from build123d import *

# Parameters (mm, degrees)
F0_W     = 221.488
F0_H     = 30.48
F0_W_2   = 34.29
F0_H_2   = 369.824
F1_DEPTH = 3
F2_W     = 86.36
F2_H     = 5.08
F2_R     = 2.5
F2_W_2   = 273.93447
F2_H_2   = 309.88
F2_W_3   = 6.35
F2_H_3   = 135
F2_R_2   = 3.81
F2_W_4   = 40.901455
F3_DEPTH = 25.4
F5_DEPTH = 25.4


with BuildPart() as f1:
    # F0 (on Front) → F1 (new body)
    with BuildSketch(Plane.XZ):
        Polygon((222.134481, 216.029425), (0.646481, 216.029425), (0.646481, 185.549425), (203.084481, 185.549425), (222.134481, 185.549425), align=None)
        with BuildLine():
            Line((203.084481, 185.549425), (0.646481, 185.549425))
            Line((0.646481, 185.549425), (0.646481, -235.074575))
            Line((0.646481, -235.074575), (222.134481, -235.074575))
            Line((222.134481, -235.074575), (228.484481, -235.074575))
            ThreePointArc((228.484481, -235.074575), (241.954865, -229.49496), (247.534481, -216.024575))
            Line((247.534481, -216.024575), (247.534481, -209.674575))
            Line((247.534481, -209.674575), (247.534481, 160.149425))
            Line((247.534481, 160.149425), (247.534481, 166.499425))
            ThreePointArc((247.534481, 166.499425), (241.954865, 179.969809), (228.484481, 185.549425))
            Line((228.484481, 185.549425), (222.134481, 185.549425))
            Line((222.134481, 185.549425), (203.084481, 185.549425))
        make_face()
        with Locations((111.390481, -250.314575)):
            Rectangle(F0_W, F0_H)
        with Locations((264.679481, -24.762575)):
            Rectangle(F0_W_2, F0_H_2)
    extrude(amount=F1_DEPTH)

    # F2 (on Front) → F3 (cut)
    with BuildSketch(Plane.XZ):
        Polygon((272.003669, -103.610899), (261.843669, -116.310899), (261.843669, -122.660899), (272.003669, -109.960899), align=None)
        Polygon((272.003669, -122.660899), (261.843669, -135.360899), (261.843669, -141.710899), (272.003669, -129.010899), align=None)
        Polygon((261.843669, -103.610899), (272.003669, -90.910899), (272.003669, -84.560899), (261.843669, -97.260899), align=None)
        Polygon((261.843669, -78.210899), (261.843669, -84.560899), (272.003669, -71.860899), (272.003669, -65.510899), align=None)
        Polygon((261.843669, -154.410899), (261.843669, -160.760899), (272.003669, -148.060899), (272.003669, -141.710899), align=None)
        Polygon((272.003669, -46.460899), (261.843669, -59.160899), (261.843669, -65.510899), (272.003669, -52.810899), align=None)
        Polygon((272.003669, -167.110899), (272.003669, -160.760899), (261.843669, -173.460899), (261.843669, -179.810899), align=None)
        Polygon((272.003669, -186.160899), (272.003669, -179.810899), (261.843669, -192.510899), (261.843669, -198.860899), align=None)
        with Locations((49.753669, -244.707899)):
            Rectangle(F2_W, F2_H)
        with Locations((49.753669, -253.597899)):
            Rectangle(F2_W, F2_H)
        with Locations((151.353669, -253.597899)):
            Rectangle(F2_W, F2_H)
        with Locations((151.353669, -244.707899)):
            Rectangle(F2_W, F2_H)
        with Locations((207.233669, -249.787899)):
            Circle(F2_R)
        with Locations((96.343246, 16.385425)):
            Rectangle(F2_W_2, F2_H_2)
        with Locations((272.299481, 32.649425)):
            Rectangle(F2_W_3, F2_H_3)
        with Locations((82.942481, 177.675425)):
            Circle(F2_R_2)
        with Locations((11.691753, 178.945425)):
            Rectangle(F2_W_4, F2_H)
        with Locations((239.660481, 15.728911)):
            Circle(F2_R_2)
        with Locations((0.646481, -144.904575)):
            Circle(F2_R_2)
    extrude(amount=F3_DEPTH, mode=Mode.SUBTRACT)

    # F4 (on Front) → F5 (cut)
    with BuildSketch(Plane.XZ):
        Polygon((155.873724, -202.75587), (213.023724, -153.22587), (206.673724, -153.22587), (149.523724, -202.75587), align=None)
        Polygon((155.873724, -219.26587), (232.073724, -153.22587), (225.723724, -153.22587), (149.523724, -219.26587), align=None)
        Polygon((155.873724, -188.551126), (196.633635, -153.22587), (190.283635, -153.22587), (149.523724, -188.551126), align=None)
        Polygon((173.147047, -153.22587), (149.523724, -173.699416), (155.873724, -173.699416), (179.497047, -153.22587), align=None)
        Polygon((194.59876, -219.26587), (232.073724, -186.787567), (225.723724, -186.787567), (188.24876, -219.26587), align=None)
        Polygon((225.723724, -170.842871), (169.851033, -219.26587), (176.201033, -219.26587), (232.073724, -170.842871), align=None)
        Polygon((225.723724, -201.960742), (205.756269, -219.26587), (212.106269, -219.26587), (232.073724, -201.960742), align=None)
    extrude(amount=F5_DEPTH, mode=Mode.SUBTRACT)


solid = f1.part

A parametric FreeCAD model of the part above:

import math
import FreeCAD as App
import Part
import Sketcher
Q = App.Units.Quantity

doc = App.newDocument("Part")
body = doc.addObject("PartDesign::Body", "Body")

sketch1 = body.newObject("Sketcher::SketchObject", "Sketch")
sketch1.AttachmentSupport = (doc.getObject("XZ_Plane"), [""])
sketch1.MapMode = "FlatFace"
sketch1.addGeometry([
    Part.LineSegment(App.Vector(222, 216, 0), App.Vector(1, 216, 0)),
    Part.LineSegment(App.Vector(1, 216, 0), App.Vector(1, -266, 0)),
    Part.LineSegment(App.Vector(1, -266, 0), App.Vector(222, -266, 0)),
    Part.LineSegment(App.Vector(222, -266, 0), App.Vector(222, -235, 0)),
    Part.LineSegment(App.Vector(222, -235, 0), App.Vector(228, -235, 0)),
    Part.ArcOfCircle(Part.Circle(App.Vector(228, -216, 0), App.Vector(0, 0, 1), 19), math.radians(-90), math.radians(0)),
    Part.LineSegment(App.Vector(248, -216, 0), App.Vector(248, -210, 0)),
    Part.LineSegment(App.Vector(248, -210, 0), App.Vector(282, -210, 0)),
    Part.LineSegment(App.Vector(282, -210, 0), App.Vector(282, 160, 0)),
    Part.LineSegment(App.Vector(282, 160, 0), App.Vector(248, 160, 0)),
    Part.LineSegment(App.Vector(248, 160, 0), App.Vector(248, 166, 0)),
    Part.ArcOfCircle(Part.Circle(App.Vector(228, 166, 0), App.Vector(0, 0, 1), 19), math.radians(0), math.radians(90)),
    Part.LineSegment(App.Vector(228, 186, 0), App.Vector(222, 186, 0)),
    Part.LineSegment(App.Vector(222, 186, 0), App.Vector(222, 216, 0)),
], False)
sketch1.addConstraint([
    Sketcher.Constraint("Coincident", 0, 2, 1, 1),
    Sketcher.Constraint("Coincident", 1, 2, 2, 1),
    Sketcher.Constraint("Coincident", 2, 2, 3, 1),
    Sketcher.Constraint("Coincident", 3, 2, 4, 1),
    Sketcher.Constraint("Tangent", 4, 2, 5, 1),
    Sketcher.Constraint("Tangent", 5, 2, 6, 1),
    Sketcher.Constraint("Coincident", 6, 2, 7, 1),
    Sketcher.Constraint("Coincident", 7, 2, 8, 1),
    Sketcher.Constraint("Coincident", 8, 2, 9, 1),
    Sketcher.Constraint("Coincident", 9, 2, 10, 1),
    Sketcher.Constraint("Tangent", 10, 2, 11, 1),
    Sketcher.Constraint("Tangent", 11, 2, 12, 1),
    Sketcher.Constraint("Coincident", 12, 2, 13, 1),
    Sketcher.Constraint("Coincident", 13, 2, 0, 1),
    Sketcher.Constraint("Horizontal", 0),
    Sketcher.Constraint("Vertical", 1),
    Sketcher.Constraint("Horizontal", 2),
    Sketcher.Constraint("Vertical", 3),
    Sketcher.Constraint("Horizontal", 4),
    Sketcher.Constraint("Vertical", 6),
    Sketcher.Constraint("Horizontal", 7),
    Sketcher.Constraint("Vertical", 8),
    Sketcher.Constraint("Horizontal", 9),
    Sketcher.Constraint("Vertical", 10),
    Sketcher.Constraint("Horizontal", 12),
    Sketcher.Constraint("Vertical", 13),
    Sketcher.Constraint("Equal", 5, 11),
    Sketcher.Constraint("Vertical", 5, 3, 11, 3),
    Sketcher.Constraint("Vertical", 3, 2, 12, 2),
    Sketcher.Constraint("Equal", 12, 6),
    Sketcher.Constraint("Equal", 6, 10),
    Sketcher.Constraint("Equal", 3, 13),
    Sketcher.Constraint("Radius", 5, Q("0.75 in")),
    Sketcher.Constraint("DistanceY", 3, 1, 3, 2, Q("1.2 in")),
    Sketcher.Constraint("DistanceX", 3, 2, 5, 2, Q("1 in")),
    Sketcher.Constraint("DistanceX", 0, 2, 0, 1, Q("8.72 in")),
    Sketcher.Constraint("DistanceX", 7, 1, 7, 2, Q("1.35 in")),
    Sketcher.Constraint("DistanceY", 1, 2, 1, 1, Q("18.96 in")),
    Sketcher.Constraint("DistanceX", -1, 1, 11, 3, Q("228.48448 mm")),
    Sketcher.Constraint("DistanceY", 5, 3, -1, 1, Q("216.024576 mm")),
])
pad1 = body.newObject("PartDesign::Pad", "Pad")
pad1.Profile = sketch1
pad1.Length = 3

sketch2 = body.newObject("Sketcher::SketchObject", "Sketch001")
sketch2.AttachmentSupport = (doc.getObject("XZ_Plane"), [""])
sketch2.MapMode = "FlatFace"
sketch2.addGeometry([
    Part.LineSegment(App.Vector(272, -103.6, 0), App.Vector(261.8, -116.3, 0)),
    Part.LineSegment(App.Vector(261.8, -116.3, 0), App.Vector(261.8, -122.7, 0)),
    Part.LineSegment(App.Vector(261.8, -122.7, 0), App.Vector(272, -110, 0)),
    Part.LineSegment(App.Vector(272, -110, 0), App.Vector(272, -103.6, 0)),
    Part.LineSegment(App.Vector(272, -122.7, 0), App.Vector(261.8, -135.4, 0)),
    Part.LineSegment(App.Vector(261.8, -135.4, 0), App.Vector(261.8, -141.7, 0)),
    Part.LineSegment(App.Vector(261.8, -141.7, 0), App.Vector(272, -129, 0)),
    Part.LineSegment(App.Vector(272, -129, 0), App.Vector(272, -122.7, 0)),
    Part.LineSegment(App.Vector(261.8, -103.6, 0), App.Vector(272, -90.9, 0)),
    Part.LineSegment(App.Vector(272, -90.9, 0), App.Vector(272, -84.6, 0)),
    Part.LineSegment(App.Vector(272, -84.6, 0), App.Vector(261.8, -97.3, 0)),
    Part.LineSegment(App.Vector(261.8, -97.3, 0), App.Vector(261.8, -103.6, 0)),
    Part.LineSegment(App.Vector(261.8, -78.2, 0), App.Vector(261.8, -84.6, 0)),
    Part.LineSegment(App.Vector(261.8, -84.6, 0), App.Vector(272, -71.9, 0)),
    Part.LineSegment(App.Vector(272, -71.9, 0), App.Vector(272, -65.5, 0)),
    Part.LineSegment(App.Vector(272, -65.5, 0), App.Vector(261.8, -78.2, 0)),
    Part.LineSegment(App.Vector(261.8, -154.4, 0), App.Vector(261.8, -160.8, 0)),
    Part.LineSegment(App.Vector(261.8, -160.8, 0), App.Vector(272, -148.1, 0)),
    Part.LineSegment(App.Vector(272, -148.1, 0), App.Vector(272, -141.7, 0)),
    Part.LineSegment(App.Vector(272, -141.7, 0), App.Vector(261.8, -154.4, 0)),
    Part.LineSegment(App.Vector(272, -46.5, 0), App.Vector(261.8, -59.2, 0)),
    Part.LineSegment(App.Vector(261.8, -59.2, 0), App.Vector(261.8, -65.5, 0)),
    Part.LineSegment(App.Vector(261.8, -65.5, 0), App.Vector(272, -52.8, 0)),
    Part.LineSegment(App.Vector(272, -52.8, 0), App.Vector(272, -46.5, 0)),
    Part.LineSegment(App.Vector(272, -167.1, 0), App.Vector(272, -160.8, 0)),
    Part.LineSegment(App.Vector(272, -160.8, 0), App.Vector(261.8, -173.5, 0)),
    Part.LineSegment(App.Vector(261.8, -173.5, 0), App.Vector(261.8, -179.8, 0)),
    Part.LineSegment(App.Vector(261.8, -179.8, 0), App.Vector(272, -167.1, 0)),
    Part.LineSegment(App.Vector(272, -186.2, 0), App.Vector(272, -179.8, 0)),
    Part.LineSegment(App.Vector(272, -179.8, 0), App.Vector(261.8, -192.5, 0)),
    Part.LineSegment(App.Vector(261.8, -192.5, 0), App.Vector(261.8, -198.9, 0)),
    Part.LineSegment(App.Vector(261.8, -198.9, 0), App.Vector(272, -186.2, 0)),
    Part.LineSegment(App.Vector(6.6, -242.2, 0), App.Vector(6.6, -247.2, 0)),
    Part.LineSegment(App.Vector(6.6, -247.2, 0), App.Vector(92.9, -247.2, 0)),
    Part.LineSegment(App.Vector(92.9, -247.2, 0), App.Vector(92.9, -242.2, 0)),
    Part.LineSegment(App.Vector(92.9, -242.2, 0), App.Vector(6.6, -242.2, 0)),
    Part.LineSegment(App.Vector(6.6, -251.1, 0), App.Vector(6.6, -256.1, 0)),
    Part.LineSegment(App.Vector(6.6, -256.1, 0), App.Vector(92.9, -256.1, 0)),
    Part.LineSegment(App.Vector(92.9, -256.1, 0), App.Vector(92.9, -251.1, 0)),
    Part.LineSegment(App.Vector(92.9, -251.1, 0), App.Vector(6.6, -251.1, 0)),
    Part.LineSegment(App.Vector(108.2, -251.1, 0), App.Vector(108.2, -256.1, 0)),
    Part.LineSegment(App.Vector(108.2, -256.1, 0), App.Vector(194.5, -256.1, 0)),
    Part.LineSegment(App.Vector(194.5, -256.1, 0), App.Vector(194.5, -251.1, 0)),
    Part.LineSegment(App.Vector(194.5, -251.1, 0), App.Vector(108.2, -251.1, 0)),
    Part.LineSegment(App.Vector(108.2, -242.2, 0), App.Vector(108.2, -247.2, 0)),
    Part.LineSegment(App.Vector(108.2, -247.2, 0), App.Vector(194.5, -247.2, 0)),
    Part.LineSegment(App.Vector(194.5, -247.2, 0), App.Vector(194.5, -242.2, 0)),
    Part.LineSegment(App.Vector(194.5, -242.2, 0), App.Vector(108.2, -242.2, 0)),
    Part.Circle(App.Vector(207.2, -249.8, 0), App.Vector(0, 0, 1), 2.5),
    Part.LineSegment(App.Vector(-40.6, 171.3, 0), App.Vector(-40.6, -138.6, 0)),
    Part.LineSegment(App.Vector(-40.6, -138.6, 0), App.Vector(233.3, -138.6, 0)),
    Part.LineSegment(App.Vector(233.3, -138.6, 0), App.Vector(233.3, 171.3, 0)),
    Part.LineSegment(App.Vector(233.3, 171.3, 0), App.Vector(-40.6, 171.3, 0)),
    Part.LineSegment(App.Vector(269.1, 100.1, 0), App.Vector(269.1, -34.9, 0)),
    Part.LineSegment(App.Vector(269.1, -34.9, 0), App.Vector(275.5, -34.9, 0)),
    Part.LineSegment(App.Vector(275.5, -34.9, 0), App.Vector(275.5, 100.1, 0)),
    Part.LineSegment(App.Vector(275.5, 100.1, 0), App.Vector(269.1, 100.1, 0)),
    Part.Circle(App.Vector(82.9, 177.7, 0), App.Vector(0, 0, 1), 3.8),
    Part.LineSegment(App.Vector(-8.8, 181.5, 0), App.Vector(-8.8, 176.4, 0)),
    Part.LineSegment(App.Vector(-8.8, 176.4, 0), App.Vector(32.1, 176.4, 0)),
    Part.LineSegment(App.Vector(32.1, 176.4, 0), App.Vector(32.1, 181.5, 0)),
    Part.LineSegment(App.Vector(32.1, 181.5, 0), App.Vector(-8.8, 181.5, 0)),
    Part.Circle(App.Vector(239.7, 15.7, 0), App.Vector(0, 0, 1), 3.8),
    Part.Circle(App.Vector(0.6, -144.9, 0), App.Vector(0, 0, 1), 3.8),
], False)
sketch2.addConstraint([
    Sketcher.Constraint("Coincident", 0, 2, 1, 1),
    Sketcher.Constraint("Coincident", 1, 2, 2, 1),
    Sketcher.Constraint("Coincident", 2, 2, 3, 1),
    Sketcher.Constraint("Coincident", 3, 2, 0, 1),
    Sketcher.Constraint("Coincident", 4, 2, 5, 1),
    Sketcher.Constraint("Coincident", 5, 2, 6, 1),
    Sketcher.Constraint("Coincident", 6, 2, 7, 1),
    Sketcher.Constraint("Coincident", 7, 2, 4, 1),
    Sketcher.Constraint("Coincident", 8, 2, 9, 1),
    Sketcher.Constraint("Coincident", 9, 2, 10, 1),
    Sketcher.Constraint("Coincident", 10, 2, 11, 1),
    Sketcher.Constraint("Coincident", 11, 2, 8, 1),
    Sketcher.Constraint("Coincident", 12, 2, 13, 1),
    Sketcher.Constraint("Coincident", 13, 2, 14, 1),
    Sketcher.Constraint("Coincident", 14, 2, 15, 1),
    Sketcher.Constraint("Coincident", 15, 2, 12, 1),
    Sketcher.Constraint("Coincident", 16, 2, 17, 1),
    Sketcher.Constraint("Coincident", 17, 2, 18, 1),
    Sketcher.Constraint("Coincident", 18, 2, 19, 1),
    Sketcher.Constraint("Coincident", 19, 2, 16, 1),
    Sketcher.Constraint("Coincident", 20, 2, 21, 1),
    Sketcher.Constraint("Coincident", 21, 2, 22, 1),
    Sketcher.Constraint("Coincident", 22, 2, 23, 1),
    Sketcher.Constraint("Coincident", 23, 2, 20, 1),
    Sketcher.Constraint("Coincident", 24, 2, 25, 1),
    Sketcher.Constraint("Coincident", 25, 2, 26, 1),
    Sketcher.Constraint("Coincident", 26, 2, 27, 1),
    Sketcher.Constraint("Coincident", 27, 2, 24, 1),
    Sketcher.Constraint("Coincident", 28, 2, 29, 1),
    Sketcher.Constraint("Coincident", 29, 2, 30, 1),
    Sketcher.Constraint("Coincident", 30, 2, 31, 1),
    Sketcher.Constraint("Coincident", 31, 2, 28, 1),
    Sketcher.Constraint("Coincident", 32, 2, 33, 1),
    Sketcher.Constraint("Coincident", 33, 2, 34, 1),
    Sketcher.Constraint("Coincident", 34, 2, 35, 1),
    Sketcher.Constraint("Coincident", 35, 2, 32, 1),
    Sketcher.Constraint("Coincident", 36, 2, 37, 1),
    Sketcher.Constraint("Coincident", 37, 2, 38, 1),
    Sketcher.Constraint("Coincident", 38, 2, 39, 1),
    Sketcher.Constraint("Coincident", 39, 2, 36, 1),
    Sketcher.Constraint("Coincident", 40, 2, 41, 1),
    Sketcher.Constraint("Coincident", 41, 2, 42, 1),
    Sketcher.Constraint("Coincident", 42, 2, 43, 1),
    Sketcher.Constraint("Coincident", 43, 2, 40, 1),
    Sketcher.Constraint("Coincident", 44, 2, 45, 1),
    Sketcher.Constraint("Coincident", 45, 2, 46, 1),
    Sketcher.Constraint("Coincident", 46, 2, 47, 1),
    Sketcher.Constraint("Coincident", 47, 2, 44, 1),
    Sketcher.Constraint("Coincident", 49, 2, 50, 1),
    Sketcher.Constraint("Coincident", 50, 2, 51, 1),
    Sketcher.Constraint("Coincident", 51, 2, 52, 1),
    Sketcher.Constraint("Coincident", 52, 2, 49, 1),
    Sketcher.Constraint("Coincident", 53, 2, 54, 1),
    Sketcher.Constraint("Coincident", 54, 2, 55, 1),
    Sketcher.Constraint("Coincident", 55, 2, 56, 1),
    Sketcher.Constraint("Coincident", 56, 2, 53, 1),
    Sketcher.Constraint("Coincident", 58, 2, 59, 1),
    Sketcher.Constraint("Coincident", 59, 2, 60, 1),
    Sketcher.Constraint("Coincident", 60, 2, 61, 1),
    Sketcher.Constraint("Coincident", 61, 2, 58, 1),
    Sketcher.Constraint("Vertical", 1),
    Sketcher.Constraint("Vertical", 3),
    Sketcher.Constraint("Vertical", 5),
    Sketcher.Constraint("Vertical", 7),
    Sketcher.Constraint("Vertical", 9),
    Sketcher.Constraint("Vertical", 11),
    Sketcher.Constraint("Vertical", 12),
    Sketcher.Constraint("Vertical", 14),
    Sketcher.Constraint("Vertical", 16),
    Sketcher.Constraint("Vertical", 18),
    Sketcher.Constraint("Vertical", 21),
    Sketcher.Constraint("Vertical", 23),
    Sketcher.Constraint("Vertical", 24),
    Sketcher.Constraint("Vertical", 26),
    Sketcher.Constraint("Vertical", 28),
    Sketcher.Constraint("Vertical", 30),
    Sketcher.Constraint("Vertical", 32),
    Sketcher.Constraint("Horizontal", 33),
    Sketcher.Constraint("Vertical", 34),
    Sketcher.Constraint("Horizontal", 35),
    Sketcher.Constraint("Vertical", 36),
    Sketcher.Constraint("Horizontal", 37),
    Sketcher.Constraint("Vertical", 38),
    Sketcher.Constraint("Horizontal", 39),
    Sketcher.Constraint("Vertical", 40),
    Sketcher.Constraint("Horizontal", 41),
    Sketcher.Constraint("Vertical", 42),
    Sketcher.Constraint("Horizontal", 43),
    Sketcher.Constraint("Vertical", 44),
    Sketcher.Constraint("Horizontal", 45),
    Sketcher.Constraint("Vertical", 46),
    Sketcher.Constraint("Horizontal", 47),
    Sketcher.Constraint("Vertical", 49),
    Sketcher.Constraint("Horizontal", 50),
    Sketcher.Constraint("Vertical", 51),
    Sketcher.Constraint("Horizontal", 52),
    Sketcher.Constraint("Vertical", 53),
    Sketcher.Constraint("Horizontal", 54),
    Sketcher.Constraint("Vertical", 55),
    Sketcher.Constraint("Horizontal", 56),
    Sketcher.Constraint("Vertical", 58),
    Sketcher.Constraint("Horizontal", 59),
    Sketcher.Constraint("Vertical", 60),
    Sketcher.Constraint("Horizontal", 61),
    Sketcher.Constraint("Equal", 57, 62),
    Sketcher.Constraint("Equal", 62, 63),
    Sketcher.Constraint("Parallel", 0, 2),
    Sketcher.Constraint("Parallel", 2, 4),
    Sketcher.Constraint("Parallel", 4, 6),
    Sketcher.Constraint("Parallel", 6, 8),
    Sketcher.Constraint("Parallel", 8, 10),
    Sketcher.Constraint("Parallel", 10, 13),
    Sketcher.Constraint("Parallel", 13, 15),
    Sketcher.Constraint("Parallel", 15, 17),
    Sketcher.Constraint("Parallel", 17, 19),
    Sketcher.Constraint("Parallel", 19, 20),
    Sketcher.Constraint("Parallel", 20, 22),
    Sketcher.Constraint("Parallel", 22, 25),
    Sketcher.Constraint("Parallel", 25, 27),
    Sketcher.Constraint("Parallel", 27, 29),
    Sketcher.Constraint("Parallel", 29, 31),
    Sketcher.Constraint("Horizontal", 1, 2, 7, 2),
    Sketcher.Constraint("Horizontal", 3, 2, 11, 2),
    Sketcher.Constraint("Horizontal", 9, 2, 12, 2),
    Sketcher.Constraint("Horizontal", 5, 2, 18, 2),
    Sketcher.Constraint("Horizontal", 14, 2, 21, 2),
    Sketcher.Constraint("Horizontal", 16, 2, 24, 2),
    Sketcher.Constraint("Horizontal", 26, 2, 28, 2),
    Sketcher.Constraint("Horizontal", 37, 2, 40, 2),
    Sketcher.Constraint("Horizontal", 39, 2, 42, 2),
    Sketcher.Constraint("Horizontal", 33, 2, 44, 2),
    Sketcher.Constraint("Horizontal", 35, 2, 46, 2),
    Sketcher.Constraint("Vertical", 1, 2, 4, 2),
    Sketcher.Constraint("Vertical", 3, 2, 6, 2),
    Sketcher.Constraint("Vertical", 7, 2, 8, 2),
    Sketcher.Constraint("Vertical", 5, 2, 10, 2),
    Sketcher.Constraint("Vertical", 11, 2, 12, 2),
    Sketcher.Constraint("Vertical", 9, 2, 13, 2),
    Sketcher.Constraint("Vertical", 15, 2, 16, 2),
    Sketcher.Constraint("Vertical", 14, 2, 17, 2),
    Sketcher.Constraint("Vertical", 19, 2, 20, 2),
    Sketcher.Constraint("Vertical", 18, 2, 22, 2),
    Sketcher.Constraint("Vertical", 23, 2, 24, 2),
    Sketcher.Constraint("Vertical", 21, 2, 25, 2),
    Sketcher.Constraint("Vertical", 27, 2, 28, 2),
    Sketcher.Constraint("Vertical", 26, 2, 29, 2),
    Sketcher.Constraint("Vertical", 35, 2, 36, 2),
    Sketcher.Constraint("Vertical", 34, 2, 37, 2),
    Sketcher.Constraint("Vertical", 43, 2, 44, 2),
    Sketcher.Constraint("Vertical", 42, 2, 45, 2),
    Sketcher.Constraint("Equal", 39, 41),
    Sketcher.Constraint("Equal", 56, 1),
    Sketcher.Constraint("Equal", 3, 5),
    Sketcher.Constraint("Equal", 7, 9),
    Sketcher.Constraint("Equal", 11, 12),
    Sketcher.Constraint("Equal", 14, 16),
    Sketcher.Constraint("Equal", 18, 21),
    Sketcher.Constraint("Equal", 23, 24),
    Sketcher.Constraint("Equal", 26, 28),
    Sketcher.Constraint("Equal", 34, 36),
    Sketcher.Constraint("Equal", 46, 58),
    Sketcher.Constraint("Diameter", 57, Q("0.3 in")),
    Sketcher.Constraint("DistanceX", 33, 1, 33, 2, Q("3.4 in")),
    Sketcher.Constraint("DistanceY", 32, 2, 32, 1, Q("0.2 in")),
    Sketcher.Constraint("DistanceY", 49, 2, 49, 1, Q("12.2 in")),
    Sketcher.Constraint("DistanceX", 54, 1, 54, 2, Q("0.25 in")),
    Sketcher.Constraint("Diameter", 48, Q("5 mm")),
    Sketcher.Constraint("DistanceY", 53, 2, 53, 1, Q("135 mm")),
    Sketcher.Constraint("DistanceX", 50, 1, 50, 2, Q("273.93447 mm")),
    Sketcher.Constraint("DistanceY", 48, 3, -1, 1, Q("249.787899 mm")),
    Sketcher.Constraint("DistanceY", 0, 2, -1, 1, Q("116.310899 mm")),
    Sketcher.Constraint("DistanceY", 2, 2, -1, 1, Q("109.960899 mm")),
    Sketcher.Constraint("DistanceY", 32, 2, -1, 1, Q("247.247899 mm")),
    Sketcher.Constraint("DistanceY", 36, 2, -1, 1, Q("256.137899 mm")),
    Sketcher.Constraint("DistanceX", 59, 1, 59, 2, Q("40.901455 mm")),
    Sketcher.Constraint("DistanceX", -1, 1, 48, 3, Q("207.233669 mm")),
    Sketcher.Constraint("DistanceX", -1, 1, 57, 3, Q("82.942481 mm")),
    Sketcher.Constraint("DistanceX", -1, 1, 62, 3, Q("239.660481 mm")),
    Sketcher.Constraint("DistanceY", -1, 1, 62, 3, Q("15.728911 mm")),
    Sketcher.Constraint("DistanceX", -1, 1, 63, 3, Q("0.646481 mm")),
    Sketcher.Constraint("DistanceX", -1, 1, 0, 2, Q("261.843669 mm")),
    Sketcher.Constraint("DistanceX", -1, 1, 2, 2, Q("272.003669 mm")),
    Sketcher.Constraint("DistanceX", -1, 1, 32, 2, Q("6.573669 mm")),
    Sketcher.Constraint("DistanceX", -1, 1, 40, 2, Q("108.173669 mm")),
    Sketcher.Constraint("DistanceX", 49, 2, -1, 1, Q("40.623989 mm")),
    Sketcher.Constraint("DistanceX", -1, 1, 53, 2, Q("269.124481 mm")),
    Sketcher.Constraint("DistanceX", -1, 1, 59, 2, Q("32.14248 mm")),
    Sketcher.Constraint("DistanceY", -1, 1, 57, 3, Q("177.675425 mm")),
    Sketcher.Constraint("DistanceY", 63, 3, -1, 1, Q("144.904575 mm")),
    Sketcher.Constraint("DistanceY", 49, 2, -1, 1, Q("138.554575 mm")),
    Sketcher.Constraint("DistanceY", 53, 2, -1, 1, Q("34.850575 mm")),
    Sketcher.Constraint("DistanceY", -1, 1, 58, 2, Q("176.405425 mm")),
])
pocket1 = body.newObject("PartDesign::Pocket", "Pocket")
pocket1.Profile = sketch2
pocket1.Length = Q("1 in")
pocket1.Reversed = True

sketch3 = body.newObject("Sketcher::SketchObject", "Sketch002")
sketch3.AttachmentSupport = (doc.getObject("XZ_Plane"), [""])
sketch3.MapMode = "FlatFace"
sketch3.addGeometry([
    Part.LineSegment(App.Vector(156, -203, 0), App.Vector(213, -153, 0)),
    Part.LineSegment(App.Vector(213, -153, 0), App.Vector(207, -153, 0)),
    Part.LineSegment(App.Vector(207, -153, 0), App.Vector(150, -203, 0)),
    Part.LineSegment(App.Vector(150, -203, 0), App.Vector(156, -203, 0)),
    Part.LineSegment(App.Vector(156, -219, 0), App.Vector(232, -153, 0)),
    Part.LineSegment(App.Vector(232, -153, 0), App.Vector(226, -153, 0)),
    Part.LineSegment(App.Vector(226, -153, 0), App.Vector(150, -219, 0)),
    Part.LineSegment(App.Vector(150, -219, 0), App.Vector(156, -219, 0)),
    Part.LineSegment(App.Vector(156, -189, 0), App.Vector(197, -153, 0)),
    Part.LineSegment(App.Vector(197, -153, 0), App.Vector(190, -153, 0)),
    Part.LineSegment(App.Vector(190, -153, 0), App.Vector(150, -189, 0)),
    Part.LineSegment(App.Vector(150, -189, 0), App.Vector(156, -189, 0)),
    Part.LineSegment(App.Vector(173, -153, 0), App.Vector(150, -174, 0)),
    Part.LineSegment(App.Vector(150, -174, 0), App.Vector(156, -174, 0)),
    Part.LineSegment(App.Vector(156, -174, 0), App.Vector(179, -153, 0)),
    Part.LineSegment(App.Vector(179, -153, 0), App.Vector(173, -153, 0)),
    Part.LineSegment(App.Vector(195, -219, 0), App.Vector(232, -187, 0)),
    Part.LineSegment(App.Vector(232, -187, 0), App.Vector(226, -187, 0)),
    Part.LineSegment(App.Vector(226, -187, 0), App.Vector(188, -219, 0)),
    Part.LineSegment(App.Vector(188, -219, 0), App.Vector(195, -219, 0)),
    Part.LineSegment(App.Vector(226, -171, 0), App.Vector(170, -219, 0)),
    Part.LineSegment(App.Vector(170, -219, 0), App.Vector(176, -219, 0)),
    Part.LineSegment(App.Vector(176, -219, 0), App.Vector(232, -171, 0)),
    Part.LineSegment(App.Vector(232, -171, 0), App.Vector(226, -171, 0)),
    Part.LineSegment(App.Vector(226, -202, 0), App.Vector(206, -219, 0)),
    Part.LineSegment(App.Vector(206, -219, 0), App.Vector(212, -219, 0)),
    Part.LineSegment(App.Vector(212, -219, 0), App.Vector(232, -202, 0)),
    Part.LineSegment(App.Vector(232, -202, 0), App.Vector(226, -202, 0)),
], False)
sketch3.addConstraint([
    Sketcher.Constraint("Coincident", 0, 2, 1, 1),
    Sketcher.Constraint("Coincident", 1, 2, 2, 1),
    Sketcher.Constraint("Coincident", 2, 2, 3, 1),
    Sketcher.Constraint("Coincident", 3, 2, 0, 1),
    Sketcher.Constraint("Coincident", 4, 2, 5, 1),
    Sketcher.Constraint("Coincident", 5, 2, 6, 1),
    Sketcher.Constraint("Coincident", 6, 2, 7, 1),
    Sketcher.Constraint("Coincident", 7, 2, 4, 1),
    Sketcher.Constraint("Coincident", 8, 2, 9, 1),
    Sketcher.Constraint("Coincident", 9, 2, 10, 1),
    Sketcher.Constraint("Coincident", 10, 2, 11, 1),
    Sketcher.Constraint("Coincident", 11, 2, 8, 1),
    Sketcher.Constraint("Coincident", 12, 2, 13, 1),
    Sketcher.Constraint("Coincident", 13, 2, 14, 1),
    Sketcher.Constraint("Coincident", 14, 2, 15, 1),
    Sketcher.Constraint("Coincident", 15, 2, 12, 1),
    Sketcher.Constraint("Coincident", 16, 2, 17, 1),
    Sketcher.Constraint("Coincident", 17, 2, 18, 1),
    Sketcher.Constraint("Coincident", 18, 2, 19, 1),
    Sketcher.Constraint("Coincident", 19, 2, 16, 1),
    Sketcher.Constraint("Coincident", 20, 2, 21, 1),
    Sketcher.Constraint("Coincident", 21, 2, 22, 1),
    Sketcher.Constraint("Coincident", 22, 2, 23, 1),
    Sketcher.Constraint("Coincident", 23, 2, 20, 1),
    Sketcher.Constraint("Coincident", 24, 2, 25, 1),
    Sketcher.Constraint("Coincident", 25, 2, 26, 1),
    Sketcher.Constraint("Coincident", 26, 2, 27, 1),
    Sketcher.Constraint("Coincident", 27, 2, 24, 1),
    Sketcher.Constraint("Horizontal", 1),
    Sketcher.Constraint("Horizontal", 3),
    Sketcher.Constraint("Horizontal", 5),
    Sketcher.Constraint("Horizontal", 7),
    Sketcher.Constraint("Horizontal", 9),
    Sketcher.Constraint("Horizontal", 11),
    Sketcher.Constraint("Horizontal", 13),
    Sketcher.Constraint("Horizontal", 15),
    Sketcher.Constraint("Horizontal", 17),
    Sketcher.Constraint("Horizontal", 19),
    Sketcher.Constraint("Horizontal", 21),
    Sketcher.Constraint("Horizontal", 23),
    Sketcher.Constraint("Horizontal", 25),
    Sketcher.Constraint("Horizontal", 27),
    Sketcher.Constraint("Parallel", 0, 2),
    Sketcher.Constraint("Parallel", 2, 4),
    Sketcher.Constraint("Parallel", 4, 6),
    Sketcher.Constraint("Parallel", 6, 8),
    Sketcher.Constraint("Parallel", 8, 10),
    Sketcher.Constraint("Parallel", 10, 12),
    Sketcher.Constraint("Parallel", 12, 14),
    Sketcher.Constraint("Parallel", 14, 16),
    Sketcher.Constraint("Parallel", 16, 18),
    Sketcher.Constraint("Parallel", 18, 20),
    Sketcher.Constraint("Parallel", 20, 22),
    Sketcher.Constraint("Parallel", 22, 24),
    Sketcher.Constraint("Parallel", 24, 26),
    Sketcher.Constraint("Horizontal", 1, 2, 4, 2),
    Sketcher.Constraint("Horizontal", 5, 2, 8, 2),
    Sketcher.Constraint("Horizontal", 9, 2, 14, 2),
    Sketcher.Constraint("Horizontal", 7, 2, 18, 2),
    Sketcher.Constraint("Horizontal", 19, 2, 20, 2),
    Sketcher.Constraint("Horizontal", 21, 2, 24, 2),
    Sketcher.Constraint("Vertical", 2, 2, 6, 2),
    Sketcher.Constraint("Vertical", 3, 2, 7, 2),
    Sketcher.Constraint("Vertical", 6, 2, 10, 2),
    Sketcher.Constraint("Vertical", 7, 2, 11, 2),
    Sketcher.Constraint("Vertical", 10, 2, 12, 2),
    Sketcher.Constraint("Vertical", 11, 2, 13, 2),
    Sketcher.Constraint("Vertical", 4, 2, 16, 2),
    Sketcher.Constraint("Vertical", 5, 2, 17, 2),
    Sketcher.Constraint("Vertical", 16, 2, 22, 2),
    Sketcher.Constraint("Vertical", 17, 2, 23, 2),
    Sketcher.Constraint("Vertical", 22, 2, 26, 2),
    Sketcher.Constraint("Vertical", 23, 2, 27, 2),
    Sketcher.Constraint("DistanceX", 3, 2, 1, 2, Q("2 in")),
    Sketcher.Constraint("DistanceX", 1, 2, 4, 2, Q("1 in")),
    Sketcher.Constraint("DistanceX", 1, 2, 1, 1, Q("0.25 in")),
    Sketcher.Constraint("DistanceY", 6, 2, 1, 2, Q("2.6 in")),
    Sketcher.Constraint("DistanceY", 22, 2, 4, 2, Q("17.617001 mm")),
    Sketcher.Constraint("Distance", 8, Q("53.937409 mm")),
    Sketcher.Constraint("DistanceY", 0, 2, -1, 1, Q("153.22587 mm")),
    Sketcher.Constraint("DistanceX", -1, 1, 18, 2, Q("188.24876 mm")),
    Sketcher.Constraint("DistanceX", -1, 1, 24, 2, Q("205.756269 mm")),
    Sketcher.Constraint("DistanceY", 10, 2, 12, 2, Q("14.85171 mm")),
    Sketcher.Constraint("DistanceY", 26, 2, 22, 2, Q("31.117871 mm")),
])
pocket2 = body.newObject("PartDesign::Pocket", "Pocket001")
pocket2.Profile = sketch3
pocket2.Length = Q("1 in")
pocket2.Reversed = True

doc.recompute()
